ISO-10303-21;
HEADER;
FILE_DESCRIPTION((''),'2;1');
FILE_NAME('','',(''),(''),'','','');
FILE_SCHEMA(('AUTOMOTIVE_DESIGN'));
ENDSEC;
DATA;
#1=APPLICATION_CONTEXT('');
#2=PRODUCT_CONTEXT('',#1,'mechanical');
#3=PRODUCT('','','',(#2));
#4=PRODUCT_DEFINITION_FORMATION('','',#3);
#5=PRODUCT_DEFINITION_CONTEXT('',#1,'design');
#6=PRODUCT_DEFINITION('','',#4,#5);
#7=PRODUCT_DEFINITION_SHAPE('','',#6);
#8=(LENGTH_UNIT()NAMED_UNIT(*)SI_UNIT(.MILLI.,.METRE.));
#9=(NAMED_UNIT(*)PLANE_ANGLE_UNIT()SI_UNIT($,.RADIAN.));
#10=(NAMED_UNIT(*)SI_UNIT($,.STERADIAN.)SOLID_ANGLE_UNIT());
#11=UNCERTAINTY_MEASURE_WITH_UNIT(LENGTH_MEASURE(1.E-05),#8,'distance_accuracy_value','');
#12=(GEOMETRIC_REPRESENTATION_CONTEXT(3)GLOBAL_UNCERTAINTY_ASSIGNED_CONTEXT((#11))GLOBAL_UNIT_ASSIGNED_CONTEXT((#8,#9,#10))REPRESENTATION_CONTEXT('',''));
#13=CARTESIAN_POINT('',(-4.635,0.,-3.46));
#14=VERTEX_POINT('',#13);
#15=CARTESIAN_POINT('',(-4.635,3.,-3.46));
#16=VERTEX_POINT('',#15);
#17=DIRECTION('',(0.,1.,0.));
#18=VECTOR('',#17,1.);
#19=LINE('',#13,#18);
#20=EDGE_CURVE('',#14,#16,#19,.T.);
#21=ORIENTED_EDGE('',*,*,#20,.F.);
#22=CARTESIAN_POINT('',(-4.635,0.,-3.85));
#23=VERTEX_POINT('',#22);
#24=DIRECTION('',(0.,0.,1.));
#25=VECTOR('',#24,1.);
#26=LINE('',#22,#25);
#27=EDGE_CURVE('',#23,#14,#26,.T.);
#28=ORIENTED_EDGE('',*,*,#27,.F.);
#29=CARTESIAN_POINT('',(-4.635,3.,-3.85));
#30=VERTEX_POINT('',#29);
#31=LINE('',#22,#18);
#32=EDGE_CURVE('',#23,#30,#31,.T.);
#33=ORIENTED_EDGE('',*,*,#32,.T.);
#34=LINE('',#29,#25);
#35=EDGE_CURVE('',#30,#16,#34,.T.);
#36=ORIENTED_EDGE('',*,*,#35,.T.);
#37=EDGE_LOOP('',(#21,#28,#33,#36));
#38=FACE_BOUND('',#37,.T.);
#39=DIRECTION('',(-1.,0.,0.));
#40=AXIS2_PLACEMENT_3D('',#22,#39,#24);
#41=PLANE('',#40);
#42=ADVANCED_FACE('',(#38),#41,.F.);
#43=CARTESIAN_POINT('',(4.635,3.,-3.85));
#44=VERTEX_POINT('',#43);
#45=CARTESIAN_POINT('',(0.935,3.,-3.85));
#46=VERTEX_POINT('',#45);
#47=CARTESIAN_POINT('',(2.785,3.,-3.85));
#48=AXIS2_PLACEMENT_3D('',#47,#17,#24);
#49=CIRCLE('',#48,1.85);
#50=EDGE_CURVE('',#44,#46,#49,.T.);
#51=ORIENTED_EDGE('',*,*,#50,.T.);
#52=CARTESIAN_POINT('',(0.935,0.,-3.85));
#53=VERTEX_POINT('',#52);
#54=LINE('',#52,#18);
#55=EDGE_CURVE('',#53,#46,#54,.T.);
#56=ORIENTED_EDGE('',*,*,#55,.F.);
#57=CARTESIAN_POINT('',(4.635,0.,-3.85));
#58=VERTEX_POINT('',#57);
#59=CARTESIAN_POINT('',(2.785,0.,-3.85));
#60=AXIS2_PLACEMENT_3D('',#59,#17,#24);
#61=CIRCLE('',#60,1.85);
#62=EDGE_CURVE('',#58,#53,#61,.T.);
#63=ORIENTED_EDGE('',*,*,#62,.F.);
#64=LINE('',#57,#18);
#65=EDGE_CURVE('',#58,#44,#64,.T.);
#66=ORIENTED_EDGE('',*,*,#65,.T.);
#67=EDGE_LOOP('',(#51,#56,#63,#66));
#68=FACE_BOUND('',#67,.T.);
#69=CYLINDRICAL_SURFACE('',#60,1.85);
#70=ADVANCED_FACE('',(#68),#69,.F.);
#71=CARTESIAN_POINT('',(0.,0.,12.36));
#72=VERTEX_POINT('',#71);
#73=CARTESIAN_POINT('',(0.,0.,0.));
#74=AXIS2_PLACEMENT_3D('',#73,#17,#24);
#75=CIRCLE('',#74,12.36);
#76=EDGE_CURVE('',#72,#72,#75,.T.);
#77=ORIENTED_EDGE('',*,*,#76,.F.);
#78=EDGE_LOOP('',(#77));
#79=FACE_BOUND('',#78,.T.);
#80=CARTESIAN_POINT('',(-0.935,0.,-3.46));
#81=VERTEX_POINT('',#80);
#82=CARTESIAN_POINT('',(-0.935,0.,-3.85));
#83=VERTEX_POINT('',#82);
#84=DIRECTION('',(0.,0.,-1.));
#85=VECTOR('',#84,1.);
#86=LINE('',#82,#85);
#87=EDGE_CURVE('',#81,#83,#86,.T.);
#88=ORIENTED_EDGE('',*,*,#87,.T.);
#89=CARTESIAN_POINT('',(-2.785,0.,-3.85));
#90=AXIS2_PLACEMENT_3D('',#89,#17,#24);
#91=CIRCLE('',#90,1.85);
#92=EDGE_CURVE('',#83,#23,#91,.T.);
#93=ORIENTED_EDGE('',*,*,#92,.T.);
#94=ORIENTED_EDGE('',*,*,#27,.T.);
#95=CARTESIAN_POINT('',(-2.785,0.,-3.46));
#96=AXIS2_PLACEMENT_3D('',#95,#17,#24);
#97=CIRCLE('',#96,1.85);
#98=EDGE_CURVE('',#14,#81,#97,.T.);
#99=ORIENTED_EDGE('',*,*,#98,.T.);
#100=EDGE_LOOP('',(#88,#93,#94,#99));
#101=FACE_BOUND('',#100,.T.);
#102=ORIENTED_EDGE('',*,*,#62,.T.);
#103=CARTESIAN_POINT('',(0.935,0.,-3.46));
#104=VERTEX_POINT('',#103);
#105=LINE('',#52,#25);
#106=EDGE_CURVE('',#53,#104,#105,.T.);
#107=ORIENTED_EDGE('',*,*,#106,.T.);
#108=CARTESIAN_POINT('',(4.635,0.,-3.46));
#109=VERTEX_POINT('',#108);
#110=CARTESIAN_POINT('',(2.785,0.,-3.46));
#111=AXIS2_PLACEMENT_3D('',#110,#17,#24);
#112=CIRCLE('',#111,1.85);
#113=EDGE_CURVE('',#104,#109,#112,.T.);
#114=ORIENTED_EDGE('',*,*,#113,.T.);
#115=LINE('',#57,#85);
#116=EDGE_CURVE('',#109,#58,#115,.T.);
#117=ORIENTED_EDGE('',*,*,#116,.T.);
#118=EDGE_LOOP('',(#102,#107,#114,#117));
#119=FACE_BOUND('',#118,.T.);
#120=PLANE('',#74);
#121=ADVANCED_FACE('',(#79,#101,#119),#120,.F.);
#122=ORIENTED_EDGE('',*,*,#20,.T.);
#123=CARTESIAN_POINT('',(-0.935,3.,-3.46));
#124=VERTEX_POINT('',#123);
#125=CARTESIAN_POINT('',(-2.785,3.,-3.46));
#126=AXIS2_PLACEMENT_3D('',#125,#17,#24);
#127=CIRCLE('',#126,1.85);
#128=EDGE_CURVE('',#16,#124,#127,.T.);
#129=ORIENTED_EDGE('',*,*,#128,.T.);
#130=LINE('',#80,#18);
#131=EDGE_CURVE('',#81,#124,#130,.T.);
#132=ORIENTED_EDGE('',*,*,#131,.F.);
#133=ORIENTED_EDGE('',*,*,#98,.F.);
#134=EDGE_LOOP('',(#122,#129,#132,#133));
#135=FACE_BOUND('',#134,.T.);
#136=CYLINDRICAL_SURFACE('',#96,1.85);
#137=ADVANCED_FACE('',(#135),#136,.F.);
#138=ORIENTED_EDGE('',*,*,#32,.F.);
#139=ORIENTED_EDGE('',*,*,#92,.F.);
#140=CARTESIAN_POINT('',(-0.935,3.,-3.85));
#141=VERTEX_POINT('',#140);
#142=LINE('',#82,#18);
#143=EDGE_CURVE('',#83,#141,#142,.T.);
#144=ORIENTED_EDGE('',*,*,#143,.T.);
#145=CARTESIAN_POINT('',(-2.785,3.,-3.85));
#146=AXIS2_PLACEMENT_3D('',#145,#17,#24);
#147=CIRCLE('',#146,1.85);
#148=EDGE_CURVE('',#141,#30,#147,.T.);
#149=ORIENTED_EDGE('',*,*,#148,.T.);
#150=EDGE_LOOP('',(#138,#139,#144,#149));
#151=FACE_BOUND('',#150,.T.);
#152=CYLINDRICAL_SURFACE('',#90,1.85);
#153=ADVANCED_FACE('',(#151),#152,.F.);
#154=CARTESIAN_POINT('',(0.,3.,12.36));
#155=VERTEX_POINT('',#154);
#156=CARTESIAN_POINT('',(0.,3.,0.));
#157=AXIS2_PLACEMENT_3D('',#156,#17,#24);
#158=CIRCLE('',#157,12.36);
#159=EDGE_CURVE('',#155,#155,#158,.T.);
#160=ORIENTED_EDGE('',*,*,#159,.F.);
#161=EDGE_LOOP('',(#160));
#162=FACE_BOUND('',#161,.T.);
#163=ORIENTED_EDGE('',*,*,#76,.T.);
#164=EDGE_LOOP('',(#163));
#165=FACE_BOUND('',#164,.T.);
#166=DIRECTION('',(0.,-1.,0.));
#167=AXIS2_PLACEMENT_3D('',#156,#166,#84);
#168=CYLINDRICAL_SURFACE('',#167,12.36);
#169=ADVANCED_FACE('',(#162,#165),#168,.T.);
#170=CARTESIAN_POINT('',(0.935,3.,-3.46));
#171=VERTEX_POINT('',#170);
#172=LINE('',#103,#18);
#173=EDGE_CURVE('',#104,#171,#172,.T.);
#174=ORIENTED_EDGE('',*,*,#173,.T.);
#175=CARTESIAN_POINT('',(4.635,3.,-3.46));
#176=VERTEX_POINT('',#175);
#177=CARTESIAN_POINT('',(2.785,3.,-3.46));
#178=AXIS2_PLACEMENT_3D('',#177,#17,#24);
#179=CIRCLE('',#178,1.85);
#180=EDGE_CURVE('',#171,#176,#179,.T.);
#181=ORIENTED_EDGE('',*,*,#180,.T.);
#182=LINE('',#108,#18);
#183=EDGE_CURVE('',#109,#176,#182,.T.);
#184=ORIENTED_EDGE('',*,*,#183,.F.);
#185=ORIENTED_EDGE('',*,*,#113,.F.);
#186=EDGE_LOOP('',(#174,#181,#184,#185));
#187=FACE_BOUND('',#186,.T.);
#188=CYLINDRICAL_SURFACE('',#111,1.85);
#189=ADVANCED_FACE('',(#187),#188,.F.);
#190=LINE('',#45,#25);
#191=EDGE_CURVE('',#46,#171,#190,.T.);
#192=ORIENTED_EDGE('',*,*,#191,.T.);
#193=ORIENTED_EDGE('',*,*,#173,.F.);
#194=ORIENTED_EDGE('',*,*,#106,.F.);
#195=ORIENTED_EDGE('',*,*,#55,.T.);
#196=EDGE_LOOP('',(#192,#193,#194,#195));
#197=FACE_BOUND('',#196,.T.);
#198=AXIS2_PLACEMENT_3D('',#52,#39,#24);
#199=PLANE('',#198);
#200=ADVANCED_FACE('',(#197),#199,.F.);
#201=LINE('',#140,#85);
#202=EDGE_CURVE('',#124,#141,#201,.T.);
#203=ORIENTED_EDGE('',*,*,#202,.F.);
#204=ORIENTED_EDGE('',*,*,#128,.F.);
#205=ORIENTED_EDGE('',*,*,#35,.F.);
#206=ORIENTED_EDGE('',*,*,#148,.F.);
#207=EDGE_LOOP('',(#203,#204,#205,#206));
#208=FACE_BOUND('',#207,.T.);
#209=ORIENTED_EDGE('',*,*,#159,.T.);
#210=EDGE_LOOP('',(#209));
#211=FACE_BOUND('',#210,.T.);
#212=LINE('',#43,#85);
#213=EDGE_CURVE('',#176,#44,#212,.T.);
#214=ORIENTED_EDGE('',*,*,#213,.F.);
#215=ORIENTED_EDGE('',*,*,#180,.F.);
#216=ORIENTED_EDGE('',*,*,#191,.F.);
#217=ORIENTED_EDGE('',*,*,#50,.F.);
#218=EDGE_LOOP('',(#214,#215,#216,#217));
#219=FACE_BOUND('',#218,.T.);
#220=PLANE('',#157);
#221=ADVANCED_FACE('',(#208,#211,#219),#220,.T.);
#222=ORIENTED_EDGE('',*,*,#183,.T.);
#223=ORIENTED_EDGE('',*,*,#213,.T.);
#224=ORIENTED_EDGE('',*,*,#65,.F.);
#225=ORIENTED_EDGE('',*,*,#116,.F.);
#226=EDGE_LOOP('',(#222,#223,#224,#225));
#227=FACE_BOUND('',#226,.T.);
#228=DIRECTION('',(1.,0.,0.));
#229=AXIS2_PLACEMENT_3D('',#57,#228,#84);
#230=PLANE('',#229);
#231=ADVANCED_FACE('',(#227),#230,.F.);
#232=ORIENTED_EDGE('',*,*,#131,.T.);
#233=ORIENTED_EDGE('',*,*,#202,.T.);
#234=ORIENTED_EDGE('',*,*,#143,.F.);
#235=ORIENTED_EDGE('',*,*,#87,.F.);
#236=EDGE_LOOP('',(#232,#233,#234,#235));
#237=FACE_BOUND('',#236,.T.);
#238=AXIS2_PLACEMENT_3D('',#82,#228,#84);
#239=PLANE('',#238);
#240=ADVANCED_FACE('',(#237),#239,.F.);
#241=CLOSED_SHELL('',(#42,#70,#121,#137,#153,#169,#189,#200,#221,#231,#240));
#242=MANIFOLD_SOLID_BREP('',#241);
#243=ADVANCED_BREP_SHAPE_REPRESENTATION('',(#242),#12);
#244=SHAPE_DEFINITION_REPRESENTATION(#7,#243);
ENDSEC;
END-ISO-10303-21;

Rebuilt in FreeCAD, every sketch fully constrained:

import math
import FreeCAD as App
import Part
import Sketcher
Q = App.Units.Quantity

doc = App.newDocument("Part")
body = doc.addObject("PartDesign::Body", "Body")

sketch1 = body.newObject("Sketcher::SketchObject", "Sketch")
sketch1.AttachmentSupport = (doc.getObject("XZ_Plane"), [""])
sketch1.MapMode = "FlatFace"
sketch1.addGeometry(Part.Circle(App.Vector(0, 0, 0), App.Vector(0, 0, 1), 12), False)
sketch1.addConstraint(Sketcher.Constraint("Coincident", 0, 3, -1, 1))
sketch1.addConstraint(Sketcher.Constraint("Diameter", 0, Q("24.72 mm")))
pad1 = body.newObject("PartDesign::Pad", "Pad")
pad1.Profile = sketch1
pad1.Length = 3
pad1.Reversed = True

sketch2 = body.newObject("Sketcher::SketchObject", "Sketch001")
sketch2.AttachmentSupport = (doc.getObject("XZ_Plane"), [""])
sketch2.MapMode = "FlatFace"
sketch2.AttachmentOffset = App.Placement(App.Vector(0, 0, -3), App.Rotation())
sketch2.addGeometry(Part.LineSegment(App.Vector(4.63, -3.46, 0), App.Vector(4.63, -3.85, 0)), False)
sketch2.addGeometry(Part.ArcOfCircle(Part.Circle(App.Vector(2.79, -3.85, 0), App.Vector(0, 0, 1), 1.85), math.radians(180), math.radians(360)), False)
sketch2.addGeometry(Part.LineSegment(App.Vector(0.94, -3.85, 0), App.Vector(0.94, -3.46, 0)), False)
sketch2.addGeometry(Part.ArcOfCircle(Part.Circle(App.Vector(2.79, -3.46, 0), App.Vector(0, 0, 1), 1.85), math.radians(0), math.radians(180)), False)
sketch2.addGeometry(Part.LineSegment(App.Vector(-0.94, -3.46, 0), App.Vector(-0.94, -3.85, 0)), False)
sketch2.addGeometry(Part.ArcOfCircle(Part.Circle(App.Vector(-2.79, -3.85, 0), App.Vector(0, 0, 1), 1.85), math.radians(180), math.radians(360)), False)
sketch2.addGeometry(Part.LineSegment(App.Vector(-4.63, -3.85, 0), App.Vector(-4.63, -3.46, 0)), False)
sketch2.addGeometry(Part.ArcOfCircle(Part.Circle(App.Vector(-2.79, -3.46, 0), App.Vector(0, 0, 1), 1.85), math.radians(0), math.radians(180)), False)
sketch2.addConstraint(Sketcher.Constraint("Tangent", 0, 2, 1, 2))
sketch2.addConstraint(Sketcher.Constraint("Tangent", 1, 1, 2, 1))
sketch2.addConstraint(Sketcher.Constraint("Tangent", 2, 2, 3, 2))
sketch2.addConstraint(Sketcher.Constraint("Tangent", 3, 1, 0, 1))
sketch2.addConstraint(Sketcher.Constraint("Tangent", 4, 2, 5, 2))
sketch2.addConstraint(Sketcher.Constraint("Tangent", 5, 1, 6, 1))
sketch2.addConstraint(Sketcher.Constraint("Tangent", 6, 2, 7, 2))
sketch2.addConstraint(Sketcher.Constraint("Tangent", 7, 1, 4, 1))
sketch2.addConstraint(Sketcher.Constraint("Vertical", 0))
sketch2.addConstraint(Sketcher.Constraint("Vertical", 2))
sketch2.addConstraint(Sketcher.Constraint("Vertical", 4))
sketch2.addConstraint(Sketcher.Constraint("Vertical", 6))
sketch2.addConstraint(Sketcher.Constraint("Equal", 3, 5))
sketch2.addConstraint(Sketcher.Constraint("Symmetric", 1, 3, 5, 3, -2))
sketch2.addConstraint(Sketcher.Constraint("Horizontal", 3, 3, 7, 3))
sketch2.addConstraint(Sketcher.Constraint("Radius", 1, Q("1.85 mm")))
sketch2.addConstraint(Sketcher.Constraint("DistanceY", 0, 2, 0, 1, Q("0.39 mm")))
sketch2.addConstraint(Sketcher.Constraint("DistanceY", 1, 3, -1, 1, Q("3.85 mm")))
sketch2.addConstraint(Sketcher.Constraint("DistanceX", 5, 3, 1, 3, Q("5.57 mm")))
pocket1 = body.newObject("PartDesign::Pocket", "Pocket")
pocket1.Profile = sketch2
pocket1.Type = "ThroughAll"
pocket1.Reversed = True

doc.recompute()
